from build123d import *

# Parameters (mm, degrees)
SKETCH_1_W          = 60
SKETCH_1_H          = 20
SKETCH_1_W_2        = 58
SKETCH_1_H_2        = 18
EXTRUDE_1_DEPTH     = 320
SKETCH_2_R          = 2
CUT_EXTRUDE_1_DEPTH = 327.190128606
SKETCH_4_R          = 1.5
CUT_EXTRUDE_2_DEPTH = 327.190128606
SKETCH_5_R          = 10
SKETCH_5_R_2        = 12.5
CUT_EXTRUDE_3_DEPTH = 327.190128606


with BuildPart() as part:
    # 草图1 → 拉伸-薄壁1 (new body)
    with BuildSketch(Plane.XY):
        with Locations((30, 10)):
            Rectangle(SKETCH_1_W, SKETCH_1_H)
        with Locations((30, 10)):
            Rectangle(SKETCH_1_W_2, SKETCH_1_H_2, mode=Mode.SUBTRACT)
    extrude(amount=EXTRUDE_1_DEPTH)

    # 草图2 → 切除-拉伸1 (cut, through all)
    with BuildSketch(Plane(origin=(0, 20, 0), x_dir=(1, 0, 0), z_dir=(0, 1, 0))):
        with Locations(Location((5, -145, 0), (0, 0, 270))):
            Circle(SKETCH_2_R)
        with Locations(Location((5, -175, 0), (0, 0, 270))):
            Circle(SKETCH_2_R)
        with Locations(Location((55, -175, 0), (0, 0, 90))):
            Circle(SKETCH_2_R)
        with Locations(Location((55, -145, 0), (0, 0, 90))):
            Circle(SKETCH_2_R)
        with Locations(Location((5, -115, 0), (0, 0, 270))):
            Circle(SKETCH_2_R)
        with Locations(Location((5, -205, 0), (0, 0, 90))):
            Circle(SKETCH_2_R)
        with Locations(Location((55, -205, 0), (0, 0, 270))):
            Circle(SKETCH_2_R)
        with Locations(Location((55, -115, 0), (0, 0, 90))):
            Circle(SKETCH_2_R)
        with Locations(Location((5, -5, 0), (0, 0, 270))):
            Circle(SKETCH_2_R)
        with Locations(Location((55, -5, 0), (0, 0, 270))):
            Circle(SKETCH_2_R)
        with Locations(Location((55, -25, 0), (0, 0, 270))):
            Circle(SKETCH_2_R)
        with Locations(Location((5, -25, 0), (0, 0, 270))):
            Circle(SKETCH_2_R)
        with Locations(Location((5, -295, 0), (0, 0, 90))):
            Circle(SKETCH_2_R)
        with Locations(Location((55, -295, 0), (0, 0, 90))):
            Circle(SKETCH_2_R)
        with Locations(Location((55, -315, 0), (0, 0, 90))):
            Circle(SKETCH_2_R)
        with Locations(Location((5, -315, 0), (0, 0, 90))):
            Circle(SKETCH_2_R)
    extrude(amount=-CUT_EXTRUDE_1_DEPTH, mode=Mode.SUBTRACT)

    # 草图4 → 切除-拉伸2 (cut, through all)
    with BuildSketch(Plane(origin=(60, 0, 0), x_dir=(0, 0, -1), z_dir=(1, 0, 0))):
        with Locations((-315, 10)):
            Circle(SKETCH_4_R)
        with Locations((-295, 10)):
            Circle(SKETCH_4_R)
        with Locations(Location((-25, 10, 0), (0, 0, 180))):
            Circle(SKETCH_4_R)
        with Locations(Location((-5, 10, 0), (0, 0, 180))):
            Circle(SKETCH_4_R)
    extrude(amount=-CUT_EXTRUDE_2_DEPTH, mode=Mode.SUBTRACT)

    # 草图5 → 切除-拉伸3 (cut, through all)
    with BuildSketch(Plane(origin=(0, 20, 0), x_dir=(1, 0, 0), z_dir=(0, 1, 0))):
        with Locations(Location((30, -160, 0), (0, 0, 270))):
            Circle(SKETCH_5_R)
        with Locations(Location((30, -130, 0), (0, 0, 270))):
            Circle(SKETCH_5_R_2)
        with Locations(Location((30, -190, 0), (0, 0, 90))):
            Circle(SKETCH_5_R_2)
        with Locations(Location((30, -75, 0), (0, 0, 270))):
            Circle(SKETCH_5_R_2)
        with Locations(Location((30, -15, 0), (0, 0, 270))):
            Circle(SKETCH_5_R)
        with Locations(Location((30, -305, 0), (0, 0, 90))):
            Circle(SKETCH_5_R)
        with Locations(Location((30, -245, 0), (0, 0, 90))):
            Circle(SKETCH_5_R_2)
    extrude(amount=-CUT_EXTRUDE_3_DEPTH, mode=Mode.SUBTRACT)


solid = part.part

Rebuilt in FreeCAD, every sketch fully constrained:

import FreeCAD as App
import Part
import Sketcher
from FreeCAD import Vector
Q = App.Units.Quantity

doc = App.newDocument("Part")
body = doc.addObject("PartDesign::Body", "Body")

sketch1 = doc.addObject("Sketcher::SketchObject", "Sketch")
body.addObject(sketch1)
sketch1.AttachmentSupport = (doc.XY_Plane, [""])
sketch1.MapMode = "FlatFace"
sketch1.addGeometry(Part.LineSegment(Vector(0, 20, 0), Vector(0, 0, 0)), False)
sketch1.addGeometry(Part.LineSegment(Vector(0, 0, 0), Vector(60, 0, 0)), False)
sketch1.addGeometry(Part.LineSegment(Vector(60, 0, 0), Vector(60, 20, 0)), False)
sketch1.addGeometry(Part.LineSegment(Vector(60, 20, 0), Vector(0, 20, 0)), False)
sketch1.addGeometry(Part.LineSegment(Vector(59, 1, 0), Vector(1, 1, 0)), False)
sketch1.addGeometry(Part.LineSegment(Vector(1, 1, 0), Vector(1, 19, 0)), False)
sketch1.addGeometry(Part.LineSegment(Vector(1, 19, 0), Vector(59, 19, 0)), False)
sketch1.addGeometry(Part.LineSegment(Vector(59, 19, 0), Vector(59, 1, 0)), False)
sketch1.addConstraint(Sketcher.Constraint("Coincident", 0, 2, 1, 1))
sketch1.addConstraint(Sketcher.Constraint("Coincident", 1, 2, 2, 1))
sketch1.addConstraint(Sketcher.Constraint("Coincident", 2, 2, 3, 1))
sketch1.addConstraint(Sketcher.Constraint("Coincident", 3, 2, 0, 1))
sketch1.addConstraint(Sketcher.Constraint("Coincident", 4, 2, 5, 1))
sketch1.addConstraint(Sketcher.Constraint("Coincident", 5, 2, 6, 1))
sketch1.addConstraint(Sketcher.Constraint("Coincident", 6, 2, 7, 1))
sketch1.addConstraint(Sketcher.Constraint("Coincident", 7, 2, 4, 1))
sketch1.addConstraint(Sketcher.Constraint("Vertical", 0))
sketch1.addConstraint(Sketcher.Constraint("Horizontal", 1))
sketch1.addConstraint(Sketcher.Constraint("Vertical", 2))
sketch1.addConstraint(Sketcher.Constraint("Horizontal", 3))
sketch1.addConstraint(Sketcher.Constraint("Horizontal", 4))
sketch1.addConstraint(Sketcher.Constraint("Vertical", 5))
sketch1.addConstraint(Sketcher.Constraint("Horizontal", 6))
sketch1.addConstraint(Sketcher.Constraint("Vertical", 7))
sketch1.addConstraint(Sketcher.Constraint("Coincident", 0, 2, -1, 1))
sketch1.addConstraint(Sketcher.Constraint("DistanceX", 1, 1, 1, 2, Q("60 mm")))
sketch1.addConstraint(Sketcher.Constraint("DistanceX", 4, 2, 4, 1, Q("58 mm")))
sketch1.addConstraint(Sketcher.Constraint("DistanceY", 0, 2, 0, 1, Q("20 mm")))
sketch1.addConstraint(Sketcher.Constraint("DistanceY", 5, 1, 5, 2, Q("18 mm")))
sketch1.addConstraint(Sketcher.Constraint("DistanceX", -1, 1, 4, 2, Q("1 mm")))
sketch1.addConstraint(Sketcher.Constraint("DistanceY", -1, 1, 4, 2, Q("1 mm")))
pad1 = doc.addObject("PartDesign::Pad", "Pad")
body.addObject(pad1)
pad1.Profile = sketch1
pad1.Length = 320

sketch2 = doc.addObject("Sketcher::SketchObject", "Sketch001")
body.addObject(sketch2)
sketch2.AttachmentSupport = (doc.XZ_Plane, [""])
sketch2.MapMode = "FlatFace"
sketch2.AttachmentOffset = App.Placement(Vector(0, 0, -20), App.Rotation())
sketch2.addGeometry(Part.Circle(Vector(5, 145, 0), Vector(0, 0, 1), 2), False)
sketch2.addGeometry(Part.Circle(Vector(5, 175, 0), Vector(0, 0, 1), 2), False)
sketch2.addGeometry(Part.Circle(Vector(55, 175, 0), Vector(0, 0, 1), 2), False)
sketch2.addGeometry(Part.Circle(Vector(55, 145, 0), Vector(0, 0, 1), 2), False)
sketch2.addGeometry(Part.Circle(Vector(5, 115, 0), Vector(0, 0, 1), 2), False)
sketch2.addGeometry(Part.Circle(Vector(5, 205, 0), Vector(0, 0, 1), 2), False)
sketch2.addGeometry(Part.Circle(Vector(55, 205, 0), Vector(0, 0, 1), 2), False)
sketch2.addGeometry(Part.Circle(Vector(55, 115, 0), Vector(0, 0, 1), 2), False)
sketch2.addGeometry(Part.Circle(Vector(5, 5, 0), Vector(0, 0, 1), 2), False)
sketch2.addGeometry(Part.Circle(Vector(55, 5, 0), Vector(0, 0, 1), 2), False)
sketch2.addGeometry(Part.Circle(Vector(55, 25, 0), Vector(0, 0, 1), 2), False)
sketch2.addGeometry(Part.Circle(Vector(5, 25, 0), Vector(0, 0, 1), 2), False)
sketch2.addGeometry(Part.Circle(Vector(5, 295, 0), Vector(0, 0, 1), 2), False)
sketch2.addGeometry(Part.Circle(Vector(55, 295, 0), Vector(0, 0, 1), 2), False)
sketch2.addGeometry(Part.Circle(Vector(55, 315, 0), Vector(0, 0, 1), 2), False)
sketch2.addGeometry(Part.Circle(Vector(5, 315, 0), Vector(0, 0, 1), 2), False)
sketch2.addConstraint(Sketcher.Constraint("Equal", 0, 1))
sketch2.addConstraint(Sketcher.Constraint("Equal", 1, 2))
sketch2.addConstraint(Sketcher.Constraint("Equal", 2, 3))
sketch2.addConstraint(Sketcher.Constraint("Equal", 3, 4))
sketch2.addConstraint(Sketcher.Constraint("Equal", 4, 5))
sketch2.addConstraint(Sketcher.Constraint("Equal", 5, 6))
sketch2.addConstraint(Sketcher.Constraint("Equal", 6, 7))
sketch2.addConstraint(Sketcher.Constraint("Equal", 7, 8))
sketch2.addConstraint(Sketcher.Constraint("Equal", 8, 9))
sketch2.addConstraint(Sketcher.Constraint("Equal", 9, 10))
sketch2.addConstraint(Sketcher.Constraint("Equal", 10, 11))
sketch2.addConstraint(Sketcher.Constraint("Equal", 11, 12))
sketch2.addConstraint(Sketcher.Constraint("Equal", 12, 13))
sketch2.addConstraint(Sketcher.Constraint("Equal", 13, 14))
sketch2.addConstraint(Sketcher.Constraint("Equal", 14, 15))
sketch2.addConstraint(Sketcher.Constraint("Horizontal", 1, 3, 2, 3))
sketch2.addConstraint(Sketcher.Constraint("Horizontal", 0, 3, 3, 3))
sketch2.addConstraint(Sketcher.Constraint("Horizontal", 5, 3, 6, 3))
sketch2.addConstraint(Sketcher.Constraint("Horizontal", 4, 3, 7, 3))
sketch2.addConstraint(Sketcher.Constraint("Horizontal", 8, 3, 9, 3))
sketch2.addConstraint(Sketcher.Constraint("Horizontal", 10, 3, 11, 3))
sketch2.addConstraint(Sketcher.Constraint("Horizontal", 12, 3, 13, 3))
sketch2.addConstraint(Sketcher.Constraint("Horizontal", 14, 3, 15, 3))
sketch2.addConstraint(Sketcher.Constraint("Vertical", 0, 3, 1, 3))
sketch2.addConstraint(Sketcher.Constraint("Vertical", 2, 3, 3, 3))
sketch2.addConstraint(Sketcher.Constraint("Vertical", 1, 3, 4, 3))
sketch2.addConstraint(Sketcher.Constraint("Vertical", 4, 3, 5, 3))
sketch2.addConstraint(Sketcher.Constraint("Vertical", 3, 3, 6, 3))
sketch2.addConstraint(Sketcher.Constraint("Vertical", 6, 3, 7, 3))
sketch2.addConstraint(Sketcher.Constraint("Vertical", 5, 3, 8, 3))
sketch2.addConstraint(Sketcher.Constraint("Vertical", 7, 3, 9, 3))
sketch2.addConstraint(Sketcher.Constraint("Vertical", 9, 3, 10, 3))
sketch2.addConstraint(Sketcher.Constraint("Vertical", 8, 3, 11, 3))
sketch2.addConstraint(Sketcher.Constraint("Vertical", 11, 3, 12, 3))
sketch2.addConstraint(Sketcher.Constraint("Vertical", 10, 3, 13, 3))
sketch2.addConstraint(Sketcher.Constraint("Vertical", 13, 3, 14, 3))
sketch2.addConstraint(Sketcher.Constraint("Vertical", 12, 3, 15, 3))
sketch2.addConstraint(Sketcher.Constraint("Diameter", 0, Q("4 mm")))
sketch2.addConstraint(Sketcher.Constraint("DistanceX", -1, 1, 0, 3, Q("5 mm")))
sketch2.addConstraint(Sketcher.Constraint("DistanceY", -1, 1, 0, 3, Q("145 mm")))
sketch2.addConstraint(Sketcher.Constraint("DistanceY", -1, 1, 1, 3, Q("175 mm")))
sketch2.addConstraint(Sketcher.Constraint("DistanceX", -1, 1, 2, 3, Q("55 mm")))
sketch2.addConstraint(Sketcher.Constraint("DistanceY", -1, 1, 4, 3, Q("115 mm")))
sketch2.addConstraint(Sketcher.Constraint("DistanceY", -1, 1, 5, 3, Q("205 mm")))
sketch2.addConstraint(Sketcher.Constraint("DistanceY", -1, 1, 8, 3, Q("5 mm")))
sketch2.addConstraint(Sketcher.Constraint("DistanceY", -1, 1, 10, 3, Q("25 mm")))
sketch2.addConstraint(Sketcher.Constraint("DistanceY", -1, 1, 12, 3, Q("295 mm")))
sketch2.addConstraint(Sketcher.Constraint("DistanceY", -1, 1, 14, 3, Q("315 mm")))
pocket1 = doc.addObject("PartDesign::Pocket", "Pocket")
body.addObject(pocket1)
pocket1.Profile = sketch2
pocket1.Type = "ThroughAll"
pocket1.Reversed = True

sketch3 = doc.addObject("Sketcher::SketchObject", "Sketch002")
body.addObject(sketch3)
sketch3.AttachmentSupport = (doc.YZ_Plane, [""])
sketch3.MapMode = "FlatFace"
sketch3.AttachmentOffset = App.Placement(Vector(0, 0, 60), App.Rotation())
sketch3.addGeometry(Part.Circle(Vector(10, 315, 0), Vector(0, 0, 1), 1.5), False)
sketch3.addGeometry(Part.Circle(Vector(10, 295, 0), Vector(0, 0, 1), 1.5), False)
sketch3.addGeometry(Part.Circle(Vector(10, 25, 0), Vector(0, 0, 1), 1.5), False)
sketch3.addGeometry(Part.Circle(Vector(10, 5, 0), Vector(0, 0, 1), 1.5), False)
sketch3.addConstraint(Sketcher.Constraint("Equal", 0, 1))
sketch3.addConstraint(Sketcher.Constraint("Equal", 1, 2))
sketch3.addConstraint(Sketcher.Constraint("Equal", 2, 3))
sketch3.addConstraint(Sketcher.Constraint("Vertical", 0, 3, 1, 3))
sketch3.addConstraint(Sketcher.Constraint("Vertical", 1, 3, 2, 3))
sketch3.addConstraint(Sketcher.Constraint("Vertical", 2, 3, 3, 3))
sketch3.addConstraint(Sketcher.Constraint("Diameter", 0, Q("3 mm")))
sketch3.addConstraint(Sketcher.Constraint("DistanceX", -1, 1, 0, 3, Q("10 mm")))
sketch3.addConstraint(Sketcher.Constraint("DistanceY", -1, 1, 0, 3, Q("315 mm")))
sketch3.addConstraint(Sketcher.Constraint("DistanceY", -1, 1, 1, 3, Q("295 mm")))
sketch3.addConstraint(Sketcher.Constraint("DistanceY", -1, 1, 2, 3, Q("25 mm")))
sketch3.addConstraint(Sketcher.Constraint("DistanceY", -1, 1, 3, 3, Q("5 mm")))
pocket2 = doc.addObject("PartDesign::Pocket", "Pocket001")
body.addObject(pocket2)
pocket2.Profile = sketch3
pocket2.Type = "ThroughAll"

sketch4 = doc.addObject("Sketcher::SketchObject", "Sketch003")
body.addObject(sketch4)
sketch4.AttachmentSupport = (doc.XZ_Plane, [""])
sketch4.MapMode = "FlatFace"
sketch4.AttachmentOffset = App.Placement(Vector(0, 0, -20), App.Rotation())
sketch4.addGeometry(Part.Circle(Vector(30, 160, 0), Vector(0, 0, 1), 10), False)
sketch4.addGeometry(Part.Circle(Vector(30, 130, 0), Vector(0, 0, 1), 12), False)
sketch4.addGeometry(Part.Circle(Vector(30, 190, 0), Vector(0, 0, 1), 12), False)
sketch4.addGeometry(Part.Circle(Vector(30, 75, 0), Vector(0, 0, 1), 12), False)
sketch4.addGeometry(Part.Circle(Vector(30, 15, 0), Vector(0, 0, 1), 10), False)
sketch4.addGeometry(Part.Circle(Vector(30, 305, 0), Vector(0, 0, 1), 10), False)
sketch4.addGeometry(Part.Circle(Vector(30, 245, 0), Vector(0, 0, 1), 12), False)
sketch4.addConstraint(Sketcher.Constraint("Equal", 1, 2))
sketch4.addConstraint(Sketcher.Constraint("Equal", 2, 3))
sketch4.addConstraint(Sketcher.Constraint("Equal", 0, 4))
sketch4.addConstraint(Sketcher.Constraint("Equal", 4, 5))
sketch4.addConstraint(Sketcher.Constraint("Equal", 3, 6))
sketch4.addConstraint(Sketcher.Constraint("Vertical", 0, 3, 1, 3))
sketch4.addConstraint(Sketcher.Constraint("Vertical", 1, 3, 2, 3))
sketch4.addConstraint(Sketcher.Constraint("Vertical", 2, 3, 3, 3))
sketch4.addConstraint(Sketcher.Constraint("Vertical", 3, 3, 4, 3))
sketch4.addConstraint(Sketcher.Constraint("Vertical", 4, 3, 5, 3))
sketch4.addConstraint(Sketcher.Constraint("Vertical", 5, 3, 6, 3))
sketch4.addConstraint(Sketcher.Constraint("Diameter", 0, Q("20 mm")))
sketch4.addConstraint(Sketcher.Constraint("Diameter", 1, Q("25 mm")))
sketch4.addConstraint(Sketcher.Constraint("DistanceX", -1, 1, 0, 3, Q("30 mm")))
sketch4.addConstraint(Sketcher.Constraint("DistanceY", -1, 1, 0, 3, Q("160 mm")))
sketch4.addConstraint(Sketcher.Constraint("DistanceY", -1, 1, 1, 3, Q("130 mm")))
sketch4.addConstraint(Sketcher.Constraint("DistanceY", -1, 1, 2, 3, Q("190 mm")))
sketch4.addConstraint(Sketcher.Constraint("DistanceY", -1, 1, 3, 3, Q("75 mm")))
sketch4.addConstraint(Sketcher.Constraint("DistanceY", -1, 1, 4, 3, Q("15 mm")))
sketch4.addConstraint(Sketcher.Constraint("DistanceY", -1, 1, 5, 3, Q("305 mm")))
sketch4.addConstraint(Sketcher.Constraint("DistanceY", -1, 1, 6, 3, Q("245 mm")))
pocket3 = doc.addObject("PartDesign::Pocket", "Pocket002")
body.addObject(pocket3)
pocket3.Profile = sketch4
pocket3.Type = "ThroughAll"
pocket3.Reversed = True

doc.recompute()
